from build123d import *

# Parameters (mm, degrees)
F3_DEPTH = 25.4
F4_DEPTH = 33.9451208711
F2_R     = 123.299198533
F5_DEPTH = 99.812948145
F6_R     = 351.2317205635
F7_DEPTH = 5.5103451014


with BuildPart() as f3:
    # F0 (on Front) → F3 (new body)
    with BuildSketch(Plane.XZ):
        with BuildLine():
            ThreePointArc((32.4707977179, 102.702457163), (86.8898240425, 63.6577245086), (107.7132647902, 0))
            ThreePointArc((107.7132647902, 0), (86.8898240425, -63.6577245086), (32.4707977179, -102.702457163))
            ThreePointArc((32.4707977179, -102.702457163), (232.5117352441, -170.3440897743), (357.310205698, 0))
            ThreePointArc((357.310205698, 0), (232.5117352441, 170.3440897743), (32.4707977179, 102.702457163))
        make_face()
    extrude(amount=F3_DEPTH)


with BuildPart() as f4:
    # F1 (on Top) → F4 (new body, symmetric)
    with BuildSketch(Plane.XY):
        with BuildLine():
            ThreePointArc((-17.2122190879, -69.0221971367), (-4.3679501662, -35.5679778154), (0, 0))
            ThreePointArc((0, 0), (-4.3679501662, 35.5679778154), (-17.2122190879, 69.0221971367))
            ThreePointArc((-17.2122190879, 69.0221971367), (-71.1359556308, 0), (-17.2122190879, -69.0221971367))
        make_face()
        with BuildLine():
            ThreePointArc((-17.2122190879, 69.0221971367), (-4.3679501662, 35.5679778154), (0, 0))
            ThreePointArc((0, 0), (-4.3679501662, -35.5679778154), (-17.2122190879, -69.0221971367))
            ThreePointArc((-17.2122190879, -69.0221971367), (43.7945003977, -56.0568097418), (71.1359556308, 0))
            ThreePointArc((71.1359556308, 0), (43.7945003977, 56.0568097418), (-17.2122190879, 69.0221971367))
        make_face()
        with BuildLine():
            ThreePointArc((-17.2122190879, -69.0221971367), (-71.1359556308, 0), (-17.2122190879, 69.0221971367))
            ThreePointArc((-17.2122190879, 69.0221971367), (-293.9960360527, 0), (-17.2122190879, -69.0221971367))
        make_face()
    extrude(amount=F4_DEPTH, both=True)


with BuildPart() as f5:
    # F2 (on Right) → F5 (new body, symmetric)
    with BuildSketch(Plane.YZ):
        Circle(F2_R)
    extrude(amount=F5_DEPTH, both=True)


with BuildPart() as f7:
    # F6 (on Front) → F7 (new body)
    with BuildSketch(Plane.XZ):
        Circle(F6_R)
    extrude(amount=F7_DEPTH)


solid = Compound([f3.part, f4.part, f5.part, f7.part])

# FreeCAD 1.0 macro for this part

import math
import FreeCAD as App
import Part
import Sketcher
Q = App.Units.Quantity

doc = App.newDocument("Part")
body = doc.addObject("PartDesign::Body", "Body")

# Sketch on XZ plane
sketch1 = body.newObject("Sketcher::SketchObject", "Sketch")
sketch1.AttachmentSupport = (doc.getObject("XZ_Plane"), [""])
sketch1.MapMode = "FlatFace"
sketch1.addGeometry([
    Part.ArcOfCircle(Part.Circle(App.Vector(0, 0, 0), App.Vector(0, 0, 1), 108), math.radians(0), math.radians(72)),
    Part.ArcOfCircle(Part.Circle(App.Vector(0, 0, 0), App.Vector(0, 0, 1), 108), math.radians(-72), math.radians(0)),
    Part.ArcOfCircle(Part.Circle(App.Vector(179, 0, 0), App.Vector(0, 0, 1), 179), math.radians(-145), math.radians(145)),
], False)
sketch1.addConstraint([
    Sketcher.Constraint("Tangent", 0, 1, 1, 2),
    Sketcher.Constraint("Coincident", 1, 1, 2, 1),
    Sketcher.Constraint("Coincident", 2, 2, 0, 2),
    Sketcher.Constraint("Coincident", 0, 3, -1, 1),
    Sketcher.Constraint("Equal", 0, 1),
    Sketcher.Constraint("PointOnObject", 2, 3, -1),
    Sketcher.Constraint("PointOnObject", 0, 1, -1),
    Sketcher.Constraint("Radius", 0, 107.713265),
    Sketcher.Constraint("Radius", 2, 178.655103),
    Sketcher.Constraint("DistanceX", 0, 1, 2, 3, 70.941838),
])
pad1 = body.newObject("PartDesign::Pad", "Pad")
pad1.Profile = sketch1
pad1.Length = Q("1 in")
body2 = doc.addObject("PartDesign::Body", "Body001")

# Sketch on XY plane
sketch2 = body2.newObject("Sketcher::SketchObject", "Sketch001")
sketch2.AttachmentSupport = (doc.getObject("XY_Plane001"), [""])
sketch2.MapMode = "FlatFace"
sketch2.addGeometry([
    Part.ArcOfCircle(Part.Circle(App.Vector(0, 0, 0), App.Vector(0, 0, 1), 71), math.radians(-104), math.radians(0)),
    Part.ArcOfCircle(Part.Circle(App.Vector(0, 0, 0), App.Vector(0, 0, 1), 71), math.radians(0), math.radians(104)),
    Part.ArcOfCircle(Part.Circle(App.Vector(-147, 0, 0), App.Vector(0, 0, 1), 147), math.radians(28), math.radians(332)),
], False)
sketch2.addConstraint([
    Sketcher.Constraint("Tangent", 0, 2, 1, 1),
    Sketcher.Constraint("Coincident", 1, 2, 2, 1),
    Sketcher.Constraint("Coincident", 2, 2, 0, 1),
    Sketcher.Constraint("Coincident", 0, 3, -1, 1),
    Sketcher.Constraint("Equal", 0, 1),
    Sketcher.Constraint("PointOnObject", 2, 3, -1),
    Sketcher.Constraint("PointOnObject", 0, 2, -1),
    Sketcher.Constraint("Radius", 2, 146.998018),
    Sketcher.Constraint("Radius", 0, 71.135956),
    Sketcher.Constraint("DistanceX", 2, 3, -1, 1, 146.998018),
])
pad2 = body2.newObject("PartDesign::Pad", "Pad001")
pad2.Profile = sketch2
pad2.Length = 67.890242
pad2.Midplane = True
body3 = doc.addObject("PartDesign::Body", "Body002")

# Sketch on YZ plane
sketch3 = body3.newObject("Sketcher::SketchObject", "Sketch002")
sketch3.AttachmentSupport = (doc.getObject("YZ_Plane002"), [""])
sketch3.MapMode = "FlatFace"
sketch3.addGeometry(Part.Circle(App.Vector(0, 0, 0), App.Vector(0, 0, 1), 123), False)
sketch3.addConstraint([
    Sketcher.Constraint("Coincident", 0, 3, -1, 1),
    Sketcher.Constraint("Diameter", 0, 246.598397),
])
pad3 = body3.newObject("PartDesign::Pad", "Pad002")
pad3.Profile = sketch3
pad3.Length = 199.625896
pad3.Midplane = True
body4 = doc.addObject("PartDesign::Body", "Body003")

# Sketch on XZ plane
sketch4 = body4.newObject("Sketcher::SketchObject", "Sketch003")
sketch4.AttachmentSupport = (doc.getObject("XZ_Plane003"), [""])
sketch4.MapMode = "FlatFace"
sketch4.addGeometry(Part.Circle(App.Vector(0, 0, 0), App.Vector(0, 0, 1), 351), False)
sketch4.addConstraint([
    Sketcher.Constraint("Coincident", 0, 3, -1, 1),
    Sketcher.Constraint("Diameter", 0, 702.463441),
])
pad4 = body4.newObject("PartDesign::Pad", "Pad003")
pad4.Profile = sketch4
pad4.Length = 5.510345

doc.recompute()
